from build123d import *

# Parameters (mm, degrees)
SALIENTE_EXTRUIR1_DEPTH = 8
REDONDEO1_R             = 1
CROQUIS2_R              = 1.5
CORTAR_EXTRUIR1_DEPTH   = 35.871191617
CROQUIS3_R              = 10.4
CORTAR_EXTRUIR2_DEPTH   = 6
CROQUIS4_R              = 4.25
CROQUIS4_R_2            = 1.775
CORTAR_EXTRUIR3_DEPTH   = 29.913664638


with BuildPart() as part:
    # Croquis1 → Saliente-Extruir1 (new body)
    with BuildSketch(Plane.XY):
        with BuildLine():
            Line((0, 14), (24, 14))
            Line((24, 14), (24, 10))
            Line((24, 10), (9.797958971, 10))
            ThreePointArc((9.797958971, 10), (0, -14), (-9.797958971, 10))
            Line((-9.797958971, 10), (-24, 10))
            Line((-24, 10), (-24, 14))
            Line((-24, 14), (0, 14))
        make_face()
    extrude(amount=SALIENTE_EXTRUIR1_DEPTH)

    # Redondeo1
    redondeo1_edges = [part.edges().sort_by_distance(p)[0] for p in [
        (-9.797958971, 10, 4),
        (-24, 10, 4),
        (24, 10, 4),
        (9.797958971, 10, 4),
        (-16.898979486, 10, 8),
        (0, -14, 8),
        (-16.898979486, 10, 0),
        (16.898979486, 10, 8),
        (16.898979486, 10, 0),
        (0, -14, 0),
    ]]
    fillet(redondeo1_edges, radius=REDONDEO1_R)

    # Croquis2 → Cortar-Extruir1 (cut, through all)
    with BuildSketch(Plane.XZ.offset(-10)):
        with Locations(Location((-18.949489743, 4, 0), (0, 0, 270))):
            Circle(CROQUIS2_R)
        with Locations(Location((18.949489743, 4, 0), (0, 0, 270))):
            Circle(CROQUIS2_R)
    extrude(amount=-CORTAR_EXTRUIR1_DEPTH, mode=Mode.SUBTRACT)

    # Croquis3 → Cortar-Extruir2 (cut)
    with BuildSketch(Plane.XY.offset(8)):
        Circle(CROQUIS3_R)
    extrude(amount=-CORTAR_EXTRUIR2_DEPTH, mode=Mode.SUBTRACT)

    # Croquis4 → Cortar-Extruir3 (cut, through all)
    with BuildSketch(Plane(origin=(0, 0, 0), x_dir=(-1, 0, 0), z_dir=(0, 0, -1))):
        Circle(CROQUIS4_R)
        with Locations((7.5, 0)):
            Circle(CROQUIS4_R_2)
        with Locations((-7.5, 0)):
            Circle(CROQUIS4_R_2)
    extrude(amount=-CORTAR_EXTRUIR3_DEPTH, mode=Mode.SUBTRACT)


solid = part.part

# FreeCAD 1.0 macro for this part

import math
import FreeCAD as App
import Part
import Sketcher

V = App.Vector


def edges_at(feature, points):
    """Names of the edges that pass closest to the given points."""
    edges = feature.Shape.Edges
    near = lambda p: min(range(len(edges)), key=lambda i: edges[i].distToShape(Part.Vertex(*p))[0])
    return sorted({f"Edge{near(p) + 1}" for p in points})

doc = App.newDocument("Part")
body = doc.addObject("PartDesign::Body", "Body")

sketch1 = body.newObject("Sketcher::SketchObject", "Sketch")
sketch1.AttachmentSupport = (doc.getObject("XY_Plane"), [""])
sketch1.MapMode = "FlatFace"
sketch1.addGeometry([
    Part.LineSegment(V(24, 10, 0), V(24, 14, 0)),
    Part.LineSegment(V(24, 14, 0), V(-24, 14, 0)),
    Part.LineSegment(V(-24, 14, 0), V(-24, 10, 0)),
    Part.LineSegment(V(-24, 10, 0), V(-9.797959, 10, 0)),
    Part.ArcOfCircle(Part.Circle(V(0, 0, 0), V(0, 0, 1), 14), math.radians(134.415309), math.radians(405.584691)),
    Part.LineSegment(V(9.797959, 10, 0), V(24, 10, 0)),
], False)
sketch1.addConstraint([
    Sketcher.Constraint("Coincident", 0, 2, 1, 1),
    Sketcher.Constraint("Coincident", 1, 2, 2, 1),
    Sketcher.Constraint("Coincident", 2, 2, 3, 1),
    Sketcher.Constraint("Coincident", 3, 2, 4, 1),
    Sketcher.Constraint("Coincident", 4, 2, 5, 1),
    Sketcher.Constraint("Coincident", 5, 2, 0, 1),
    Sketcher.Constraint("Vertical", 0),
    Sketcher.Constraint("Horizontal", 1),
    Sketcher.Constraint("Vertical", 2),
    Sketcher.Constraint("Horizontal", 3),
    Sketcher.Constraint("Horizontal", 5),
    Sketcher.Constraint("Coincident", 4, 3, -1, 1),
    Sketcher.Constraint("Symmetric", 2, 2, 5, 2, -2),
    Sketcher.Constraint("Radius", 4, 14.0),
    Sketcher.Constraint("DistanceX", 1, 2, 1, 1, 48.0),
    Sketcher.Constraint("DistanceY", 0, 1, 0, 2, 4.0),
    Sketcher.Constraint("DistanceY", -1, 1, 0, 2, 14.0),
])
pad1 = body.newObject("PartDesign::Pad", "Pad")
pad1.Profile = sketch1
pad1.Length = 8
doc.recompute()

fillet = body.newObject("PartDesign::Fillet", "Fillet")
fillet.Base = (pad1, edges_at(pad1, [
    (-9.798, 10, 4),
    (-24, 10, 4),
    (24, 10, 4),
    (9.798, 10, 4),
    (-16.899, 10, 8),
    (0, -14, 8),
    (-16.899, 10, 0),
    (16.899, 10, 8),
    (16.899, 10, 0),
    (0, -14, 0),
]))
fillet.Radius = 1

sketch2 = body.newObject("Sketcher::SketchObject", "Sketch001")
sketch2.AttachmentSupport = (doc.getObject("XZ_Plane"), [""])
sketch2.MapMode = "FlatFace"
sketch2.AttachmentOffset = App.Placement(V(0, 0, -10), App.Rotation())
sketch2.addGeometry([
    Part.Circle(V(-18.94949, 4, 0), V(0, 0, 1), 1.5),
    Part.Circle(V(18.94949, 4, 0), V(0, 0, 1), 1.5),
], False)
sketch2.addConstraint([
    Sketcher.Constraint("Equal", 0, 1),
    Sketcher.Constraint("Symmetric", 0, 3, 1, 3, -2),
    Sketcher.Constraint("Diameter", 0, 3.0),
    Sketcher.Constraint("DistanceY", -1, 1, 0, 3, 4.0),
    Sketcher.Constraint("DistanceX", 0, 3, -1, 1, 18.94949),
])
pocket1 = body.newObject("PartDesign::Pocket", "Pocket")
pocket1.Profile = sketch2
pocket1.Type = "ThroughAll"

sketch3 = body.newObject("Sketcher::SketchObject", "Sketch002")
sketch3.AttachmentSupport = (doc.getObject("XY_Plane"), [""])
sketch3.MapMode = "FlatFace"
sketch3.AttachmentOffset = App.Placement(V(0, 0, 8), App.Rotation())
sketch3.addGeometry(Part.Circle(V(0, 0, 0), V(0, 0, 1), 10.4), False)
sketch3.addConstraint([
    Sketcher.Constraint("Coincident", 0, 3, -1, 1),
    Sketcher.Constraint("Diameter", 0, 20.8),
])
pocket2 = body.newObject("PartDesign::Pocket", "Pocket001")
pocket2.Profile = sketch3
pocket2.Length = 6

sketch4 = body.newObject("Sketcher::SketchObject", "Sketch003")
sketch4.AttachmentSupport = (doc.getObject("XY_Plane"), [""])
sketch4.MapMode = "FlatFace"
sketch4.addGeometry([
    Part.Circle(V(0, 0, 0), V(0, 0, 1), 4.25),
    Part.Circle(V(-7.5, 0, 0), V(0, 0, 1), 1.775),
    Part.Circle(V(7.5, 0, 0), V(0, 0, 1), 1.775),
], False)
sketch4.addConstraint([
    Sketcher.Constraint("Coincident", 0, 3, -1, 1),
    Sketcher.Constraint("Equal", 1, 2),
    Sketcher.Constraint("Symmetric", 1, 3, 2, 3, -1, 1),
    Sketcher.Constraint("PointOnObject", 1, 3, -1),
    Sketcher.Constraint("Diameter", 0, 8.5),
    Sketcher.Constraint("Diameter", 1, 3.55),
    Sketcher.Constraint("DistanceX", 1, 3, 2, 3, 15.0),
])
pocket3 = body.newObject("PartDesign::Pocket", "Pocket002")
pocket3.Profile = sketch4
pocket3.Type = "ThroughAll"
pocket3.Reversed = True

doc.recompute()
